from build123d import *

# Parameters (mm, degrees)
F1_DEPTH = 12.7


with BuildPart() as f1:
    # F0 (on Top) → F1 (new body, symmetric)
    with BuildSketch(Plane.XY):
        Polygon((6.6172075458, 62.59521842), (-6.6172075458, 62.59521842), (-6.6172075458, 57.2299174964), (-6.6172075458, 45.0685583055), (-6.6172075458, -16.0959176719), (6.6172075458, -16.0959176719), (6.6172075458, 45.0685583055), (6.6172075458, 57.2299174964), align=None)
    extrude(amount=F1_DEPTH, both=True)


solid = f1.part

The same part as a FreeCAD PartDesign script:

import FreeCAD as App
import Part
import Sketcher
from FreeCAD import Vector
Q = App.Units.Quantity


def add_polygon(sketch, points):
    """Adds a closed chain of lines whose ends are joined by coincident constraints."""
    first, n = sketch.GeometryCount, len(points)
    for a, b in zip(points, points[1:] + points[:1]):
        sketch.addGeometry(Part.LineSegment(App.Vector(*a, 0), App.Vector(*b, 0)), False)
    for i in range(n):
        sketch.addConstraint(Sketcher.Constraint("Coincident", first + i, 2, first + (i + 1) % n, 1))

doc = App.newDocument("Part")
body = doc.addObject("PartDesign::Body", "Body")

# Sketch on XY plane
sketch1 = doc.addObject("Sketcher::SketchObject", "Sketch")
body.addObject(sketch1)
sketch1.AttachmentSupport = (doc.XY_Plane, [""])
sketch1.MapMode = "FlatFace"
add_polygon(sketch1, [(7, 63), (-7, 63), (-7, -16), (7, -16)])  # lines 0-3
sketch1.addConstraint([
    Sketcher.Constraint("Horizontal", 0),
    Sketcher.Constraint("Vertical", 1),
    Sketcher.Constraint("Horizontal", 2),
    Sketcher.Constraint("Vertical", 3),
    Sketcher.Constraint("DistanceX", 0, 2, 0, 1, Q("13.234415 mm")),
    Sketcher.Constraint("DistanceY", 1, 2, 1, 1, Q("78.691136 mm")),
    Sketcher.Constraint("DistanceY", -1, 1, 0, 2, Q("62.595218 mm")),
    Sketcher.Constraint("DistanceX", 0, 2, -1, 1, Q("6.617208 mm")),
])
pad1 = doc.addObject("PartDesign::Pad", "Pad")
body.addObject(pad1)
pad1.Profile = sketch1
pad1.Length = Q("1 in")
pad1.Midplane = True

doc.recompute()
